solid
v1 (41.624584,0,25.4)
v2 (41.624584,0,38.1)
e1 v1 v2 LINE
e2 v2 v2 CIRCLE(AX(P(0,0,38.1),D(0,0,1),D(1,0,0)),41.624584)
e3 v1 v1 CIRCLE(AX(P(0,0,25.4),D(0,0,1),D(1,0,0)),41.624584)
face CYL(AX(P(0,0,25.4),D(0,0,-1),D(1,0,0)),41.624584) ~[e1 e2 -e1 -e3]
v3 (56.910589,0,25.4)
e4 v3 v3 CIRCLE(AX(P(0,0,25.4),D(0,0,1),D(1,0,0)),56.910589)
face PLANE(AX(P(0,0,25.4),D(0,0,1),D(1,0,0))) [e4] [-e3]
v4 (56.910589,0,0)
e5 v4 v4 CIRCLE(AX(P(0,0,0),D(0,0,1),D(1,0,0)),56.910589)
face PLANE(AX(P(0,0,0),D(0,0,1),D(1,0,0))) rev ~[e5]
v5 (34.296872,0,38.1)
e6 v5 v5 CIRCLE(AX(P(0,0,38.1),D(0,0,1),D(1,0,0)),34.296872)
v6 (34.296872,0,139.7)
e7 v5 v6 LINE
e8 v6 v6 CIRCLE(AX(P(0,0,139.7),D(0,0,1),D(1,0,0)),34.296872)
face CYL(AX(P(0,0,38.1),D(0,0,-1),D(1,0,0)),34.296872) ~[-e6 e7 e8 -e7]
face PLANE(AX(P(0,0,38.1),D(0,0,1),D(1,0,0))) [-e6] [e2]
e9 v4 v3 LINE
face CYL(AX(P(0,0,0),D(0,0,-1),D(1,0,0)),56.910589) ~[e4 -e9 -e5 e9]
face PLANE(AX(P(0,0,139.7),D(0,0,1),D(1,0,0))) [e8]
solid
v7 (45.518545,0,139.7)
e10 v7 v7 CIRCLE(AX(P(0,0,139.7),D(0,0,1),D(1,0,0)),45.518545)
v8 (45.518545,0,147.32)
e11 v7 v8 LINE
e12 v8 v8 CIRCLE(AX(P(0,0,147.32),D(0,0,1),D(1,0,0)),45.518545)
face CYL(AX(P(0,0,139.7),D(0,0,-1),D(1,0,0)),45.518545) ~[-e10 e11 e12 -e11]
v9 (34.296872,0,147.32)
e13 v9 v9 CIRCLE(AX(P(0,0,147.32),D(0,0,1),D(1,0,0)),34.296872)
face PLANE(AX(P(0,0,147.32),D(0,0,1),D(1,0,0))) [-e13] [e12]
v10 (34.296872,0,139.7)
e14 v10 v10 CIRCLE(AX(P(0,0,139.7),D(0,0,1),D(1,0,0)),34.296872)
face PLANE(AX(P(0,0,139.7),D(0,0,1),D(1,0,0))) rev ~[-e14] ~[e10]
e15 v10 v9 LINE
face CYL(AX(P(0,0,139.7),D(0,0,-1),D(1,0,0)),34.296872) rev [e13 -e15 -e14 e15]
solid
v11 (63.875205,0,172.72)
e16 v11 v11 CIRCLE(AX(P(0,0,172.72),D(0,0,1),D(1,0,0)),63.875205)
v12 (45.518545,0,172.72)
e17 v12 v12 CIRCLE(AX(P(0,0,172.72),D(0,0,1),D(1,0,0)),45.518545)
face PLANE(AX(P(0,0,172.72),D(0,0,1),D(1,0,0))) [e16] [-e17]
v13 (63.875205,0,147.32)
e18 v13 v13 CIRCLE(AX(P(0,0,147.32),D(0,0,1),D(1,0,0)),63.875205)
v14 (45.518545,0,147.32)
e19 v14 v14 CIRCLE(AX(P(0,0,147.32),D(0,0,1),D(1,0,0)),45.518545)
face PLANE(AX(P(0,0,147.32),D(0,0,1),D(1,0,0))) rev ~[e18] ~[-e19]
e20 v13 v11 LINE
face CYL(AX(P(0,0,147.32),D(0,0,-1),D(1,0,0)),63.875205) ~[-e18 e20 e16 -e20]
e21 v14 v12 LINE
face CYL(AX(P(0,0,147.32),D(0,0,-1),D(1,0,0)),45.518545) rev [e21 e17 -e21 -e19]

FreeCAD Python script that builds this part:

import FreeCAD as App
import Part
import Sketcher
Q = App.Units.Quantity

doc = App.newDocument("Part")
body = doc.addObject("PartDesign::Body", "Body")

sketch1 = body.newObject("Sketcher::SketchObject", "Sketch")
sketch1.AttachmentSupport = (doc.getObject("XY_Plane"), [""])
sketch1.MapMode = "FlatFace"
sketch1.addGeometry(Part.Circle(App.Vector(0, 0, 0), App.Vector(0, 0, 1), 57), False)
sketch1.addConstraint(Sketcher.Constraint("Coincident", 0, 3, -1, 1))
sketch1.addConstraint(Sketcher.Constraint("Diameter", 0, Q("113.821178 mm")))
pad1 = body.newObject("PartDesign::Pad", "Pad")
pad1.Profile = sketch1
pad1.Length = Q("1 in")

sketch2 = body.newObject("Sketcher::SketchObject", "Sketch001")
sketch2.AttachmentSupport = (doc.getObject("XY_Plane"), [""])
sketch2.MapMode = "FlatFace"
sketch2.AttachmentOffset = App.Placement(App.Vector(0, 0, 1 * 25.4), App.Rotation())
sketch2.addGeometry(Part.Circle(App.Vector(0, 0, 0), App.Vector(0, 0, 1), 42), False)
sketch2.addConstraint(Sketcher.Constraint("Coincident", 0, 3, -1, 1))
sketch2.addConstraint(Sketcher.Constraint("Diameter", 0, Q("83.249168 mm")))
pad2 = body.newObject("PartDesign::Pad", "Pad001")
pad2.Profile = sketch2
pad2.Length = Q("0.5 in")

sketch3 = body.newObject("Sketcher::SketchObject", "Sketch002")
sketch3.AttachmentSupport = (doc.getObject("XY_Plane"), [""])
sketch3.MapMode = "FlatFace"
sketch3.AttachmentOffset = App.Placement(App.Vector(0, 0, 1.5 * 25.4), App.Rotation())
sketch3.addGeometry(Part.Circle(App.Vector(0, 0, 0), App.Vector(0, 0, 1), 34), False)
sketch3.addConstraint(Sketcher.Constraint("Coincident", 0, 3, -1, 1))
sketch3.addConstraint(Sketcher.Constraint("Diameter", 0, Q("68.593745 mm")))
pad3 = body.newObject("PartDesign::Pad", "Pad002")
pad3.Profile = sketch3
pad3.Length = Q("4 in")
body2 = doc.addObject("PartDesign::Body", "Body001")

sketch4 = body2.newObject("Sketcher::SketchObject", "Sketch003")
sketch4.AttachmentSupport = (doc.getObject("XY_Plane001"), [""])
sketch4.MapMode = "FlatFace"
sketch4.AttachmentOffset = App.Placement(App.Vector(0, 0, 5.5 * 25.4), App.Rotation())
sketch4.addGeometry(Part.Circle(App.Vector(0, 0, 0), App.Vector(0, 0, 1), 46), False)
sketch4.addGeometry(Part.Circle(App.Vector(0, 0, 0), App.Vector(0, 0, 1), 34), False)
sketch4.addConstraint(Sketcher.Constraint("Coincident", 0, 3, -1, 1))
sketch4.addConstraint(Sketcher.Constraint("Coincident", 1, 3, -1, 1))
sketch4.addConstraint(Sketcher.Constraint("Diameter", 0, Q("91.03709 mm")))
sketch4.addConstraint(Sketcher.Constraint("Diameter", 1, Q("68.593745 mm")))
pad4 = body2.newObject("PartDesign::Pad", "Pad003")
pad4.Profile = sketch4
pad4.Length = Q("0.3 in")
body3 = doc.addObject("PartDesign::Body", "Body002")

sketch5 = body3.newObject("Sketcher::SketchObject", "Sketch004")
sketch5.AttachmentSupport = (doc.getObject("XY_Plane002"), [""])
sketch5.MapMode = "FlatFace"
sketch5.AttachmentOffset = App.Placement(App.Vector(0, 0, 5.8 * 25.4), App.Rotation())
sketch5.addGeometry(Part.Circle(App.Vector(0, 0, 0), App.Vector(0, 0, 1), 64), False)
sketch5.addGeometry(Part.Circle(App.Vector(0, 0, 0), App.Vector(0, 0, 1), 46), False)
sketch5.addConstraint(Sketcher.Constraint("Coincident", 0, 3, -1, 1))
sketch5.addConstraint(Sketcher.Constraint("Coincident", 1, 3, -1, 1))
sketch5.addConstraint(Sketcher.Constraint("Diameter", 0, Q("127.750409 mm")))
sketch5.addConstraint(Sketcher.Constraint("Diameter", 1, Q("91.03709 mm")))
pad5 = body3.newObject("PartDesign::Pad", "Pad004")
pad5.Profile = sketch5
pad5.Length = Q("1 in")

doc.recompute()
